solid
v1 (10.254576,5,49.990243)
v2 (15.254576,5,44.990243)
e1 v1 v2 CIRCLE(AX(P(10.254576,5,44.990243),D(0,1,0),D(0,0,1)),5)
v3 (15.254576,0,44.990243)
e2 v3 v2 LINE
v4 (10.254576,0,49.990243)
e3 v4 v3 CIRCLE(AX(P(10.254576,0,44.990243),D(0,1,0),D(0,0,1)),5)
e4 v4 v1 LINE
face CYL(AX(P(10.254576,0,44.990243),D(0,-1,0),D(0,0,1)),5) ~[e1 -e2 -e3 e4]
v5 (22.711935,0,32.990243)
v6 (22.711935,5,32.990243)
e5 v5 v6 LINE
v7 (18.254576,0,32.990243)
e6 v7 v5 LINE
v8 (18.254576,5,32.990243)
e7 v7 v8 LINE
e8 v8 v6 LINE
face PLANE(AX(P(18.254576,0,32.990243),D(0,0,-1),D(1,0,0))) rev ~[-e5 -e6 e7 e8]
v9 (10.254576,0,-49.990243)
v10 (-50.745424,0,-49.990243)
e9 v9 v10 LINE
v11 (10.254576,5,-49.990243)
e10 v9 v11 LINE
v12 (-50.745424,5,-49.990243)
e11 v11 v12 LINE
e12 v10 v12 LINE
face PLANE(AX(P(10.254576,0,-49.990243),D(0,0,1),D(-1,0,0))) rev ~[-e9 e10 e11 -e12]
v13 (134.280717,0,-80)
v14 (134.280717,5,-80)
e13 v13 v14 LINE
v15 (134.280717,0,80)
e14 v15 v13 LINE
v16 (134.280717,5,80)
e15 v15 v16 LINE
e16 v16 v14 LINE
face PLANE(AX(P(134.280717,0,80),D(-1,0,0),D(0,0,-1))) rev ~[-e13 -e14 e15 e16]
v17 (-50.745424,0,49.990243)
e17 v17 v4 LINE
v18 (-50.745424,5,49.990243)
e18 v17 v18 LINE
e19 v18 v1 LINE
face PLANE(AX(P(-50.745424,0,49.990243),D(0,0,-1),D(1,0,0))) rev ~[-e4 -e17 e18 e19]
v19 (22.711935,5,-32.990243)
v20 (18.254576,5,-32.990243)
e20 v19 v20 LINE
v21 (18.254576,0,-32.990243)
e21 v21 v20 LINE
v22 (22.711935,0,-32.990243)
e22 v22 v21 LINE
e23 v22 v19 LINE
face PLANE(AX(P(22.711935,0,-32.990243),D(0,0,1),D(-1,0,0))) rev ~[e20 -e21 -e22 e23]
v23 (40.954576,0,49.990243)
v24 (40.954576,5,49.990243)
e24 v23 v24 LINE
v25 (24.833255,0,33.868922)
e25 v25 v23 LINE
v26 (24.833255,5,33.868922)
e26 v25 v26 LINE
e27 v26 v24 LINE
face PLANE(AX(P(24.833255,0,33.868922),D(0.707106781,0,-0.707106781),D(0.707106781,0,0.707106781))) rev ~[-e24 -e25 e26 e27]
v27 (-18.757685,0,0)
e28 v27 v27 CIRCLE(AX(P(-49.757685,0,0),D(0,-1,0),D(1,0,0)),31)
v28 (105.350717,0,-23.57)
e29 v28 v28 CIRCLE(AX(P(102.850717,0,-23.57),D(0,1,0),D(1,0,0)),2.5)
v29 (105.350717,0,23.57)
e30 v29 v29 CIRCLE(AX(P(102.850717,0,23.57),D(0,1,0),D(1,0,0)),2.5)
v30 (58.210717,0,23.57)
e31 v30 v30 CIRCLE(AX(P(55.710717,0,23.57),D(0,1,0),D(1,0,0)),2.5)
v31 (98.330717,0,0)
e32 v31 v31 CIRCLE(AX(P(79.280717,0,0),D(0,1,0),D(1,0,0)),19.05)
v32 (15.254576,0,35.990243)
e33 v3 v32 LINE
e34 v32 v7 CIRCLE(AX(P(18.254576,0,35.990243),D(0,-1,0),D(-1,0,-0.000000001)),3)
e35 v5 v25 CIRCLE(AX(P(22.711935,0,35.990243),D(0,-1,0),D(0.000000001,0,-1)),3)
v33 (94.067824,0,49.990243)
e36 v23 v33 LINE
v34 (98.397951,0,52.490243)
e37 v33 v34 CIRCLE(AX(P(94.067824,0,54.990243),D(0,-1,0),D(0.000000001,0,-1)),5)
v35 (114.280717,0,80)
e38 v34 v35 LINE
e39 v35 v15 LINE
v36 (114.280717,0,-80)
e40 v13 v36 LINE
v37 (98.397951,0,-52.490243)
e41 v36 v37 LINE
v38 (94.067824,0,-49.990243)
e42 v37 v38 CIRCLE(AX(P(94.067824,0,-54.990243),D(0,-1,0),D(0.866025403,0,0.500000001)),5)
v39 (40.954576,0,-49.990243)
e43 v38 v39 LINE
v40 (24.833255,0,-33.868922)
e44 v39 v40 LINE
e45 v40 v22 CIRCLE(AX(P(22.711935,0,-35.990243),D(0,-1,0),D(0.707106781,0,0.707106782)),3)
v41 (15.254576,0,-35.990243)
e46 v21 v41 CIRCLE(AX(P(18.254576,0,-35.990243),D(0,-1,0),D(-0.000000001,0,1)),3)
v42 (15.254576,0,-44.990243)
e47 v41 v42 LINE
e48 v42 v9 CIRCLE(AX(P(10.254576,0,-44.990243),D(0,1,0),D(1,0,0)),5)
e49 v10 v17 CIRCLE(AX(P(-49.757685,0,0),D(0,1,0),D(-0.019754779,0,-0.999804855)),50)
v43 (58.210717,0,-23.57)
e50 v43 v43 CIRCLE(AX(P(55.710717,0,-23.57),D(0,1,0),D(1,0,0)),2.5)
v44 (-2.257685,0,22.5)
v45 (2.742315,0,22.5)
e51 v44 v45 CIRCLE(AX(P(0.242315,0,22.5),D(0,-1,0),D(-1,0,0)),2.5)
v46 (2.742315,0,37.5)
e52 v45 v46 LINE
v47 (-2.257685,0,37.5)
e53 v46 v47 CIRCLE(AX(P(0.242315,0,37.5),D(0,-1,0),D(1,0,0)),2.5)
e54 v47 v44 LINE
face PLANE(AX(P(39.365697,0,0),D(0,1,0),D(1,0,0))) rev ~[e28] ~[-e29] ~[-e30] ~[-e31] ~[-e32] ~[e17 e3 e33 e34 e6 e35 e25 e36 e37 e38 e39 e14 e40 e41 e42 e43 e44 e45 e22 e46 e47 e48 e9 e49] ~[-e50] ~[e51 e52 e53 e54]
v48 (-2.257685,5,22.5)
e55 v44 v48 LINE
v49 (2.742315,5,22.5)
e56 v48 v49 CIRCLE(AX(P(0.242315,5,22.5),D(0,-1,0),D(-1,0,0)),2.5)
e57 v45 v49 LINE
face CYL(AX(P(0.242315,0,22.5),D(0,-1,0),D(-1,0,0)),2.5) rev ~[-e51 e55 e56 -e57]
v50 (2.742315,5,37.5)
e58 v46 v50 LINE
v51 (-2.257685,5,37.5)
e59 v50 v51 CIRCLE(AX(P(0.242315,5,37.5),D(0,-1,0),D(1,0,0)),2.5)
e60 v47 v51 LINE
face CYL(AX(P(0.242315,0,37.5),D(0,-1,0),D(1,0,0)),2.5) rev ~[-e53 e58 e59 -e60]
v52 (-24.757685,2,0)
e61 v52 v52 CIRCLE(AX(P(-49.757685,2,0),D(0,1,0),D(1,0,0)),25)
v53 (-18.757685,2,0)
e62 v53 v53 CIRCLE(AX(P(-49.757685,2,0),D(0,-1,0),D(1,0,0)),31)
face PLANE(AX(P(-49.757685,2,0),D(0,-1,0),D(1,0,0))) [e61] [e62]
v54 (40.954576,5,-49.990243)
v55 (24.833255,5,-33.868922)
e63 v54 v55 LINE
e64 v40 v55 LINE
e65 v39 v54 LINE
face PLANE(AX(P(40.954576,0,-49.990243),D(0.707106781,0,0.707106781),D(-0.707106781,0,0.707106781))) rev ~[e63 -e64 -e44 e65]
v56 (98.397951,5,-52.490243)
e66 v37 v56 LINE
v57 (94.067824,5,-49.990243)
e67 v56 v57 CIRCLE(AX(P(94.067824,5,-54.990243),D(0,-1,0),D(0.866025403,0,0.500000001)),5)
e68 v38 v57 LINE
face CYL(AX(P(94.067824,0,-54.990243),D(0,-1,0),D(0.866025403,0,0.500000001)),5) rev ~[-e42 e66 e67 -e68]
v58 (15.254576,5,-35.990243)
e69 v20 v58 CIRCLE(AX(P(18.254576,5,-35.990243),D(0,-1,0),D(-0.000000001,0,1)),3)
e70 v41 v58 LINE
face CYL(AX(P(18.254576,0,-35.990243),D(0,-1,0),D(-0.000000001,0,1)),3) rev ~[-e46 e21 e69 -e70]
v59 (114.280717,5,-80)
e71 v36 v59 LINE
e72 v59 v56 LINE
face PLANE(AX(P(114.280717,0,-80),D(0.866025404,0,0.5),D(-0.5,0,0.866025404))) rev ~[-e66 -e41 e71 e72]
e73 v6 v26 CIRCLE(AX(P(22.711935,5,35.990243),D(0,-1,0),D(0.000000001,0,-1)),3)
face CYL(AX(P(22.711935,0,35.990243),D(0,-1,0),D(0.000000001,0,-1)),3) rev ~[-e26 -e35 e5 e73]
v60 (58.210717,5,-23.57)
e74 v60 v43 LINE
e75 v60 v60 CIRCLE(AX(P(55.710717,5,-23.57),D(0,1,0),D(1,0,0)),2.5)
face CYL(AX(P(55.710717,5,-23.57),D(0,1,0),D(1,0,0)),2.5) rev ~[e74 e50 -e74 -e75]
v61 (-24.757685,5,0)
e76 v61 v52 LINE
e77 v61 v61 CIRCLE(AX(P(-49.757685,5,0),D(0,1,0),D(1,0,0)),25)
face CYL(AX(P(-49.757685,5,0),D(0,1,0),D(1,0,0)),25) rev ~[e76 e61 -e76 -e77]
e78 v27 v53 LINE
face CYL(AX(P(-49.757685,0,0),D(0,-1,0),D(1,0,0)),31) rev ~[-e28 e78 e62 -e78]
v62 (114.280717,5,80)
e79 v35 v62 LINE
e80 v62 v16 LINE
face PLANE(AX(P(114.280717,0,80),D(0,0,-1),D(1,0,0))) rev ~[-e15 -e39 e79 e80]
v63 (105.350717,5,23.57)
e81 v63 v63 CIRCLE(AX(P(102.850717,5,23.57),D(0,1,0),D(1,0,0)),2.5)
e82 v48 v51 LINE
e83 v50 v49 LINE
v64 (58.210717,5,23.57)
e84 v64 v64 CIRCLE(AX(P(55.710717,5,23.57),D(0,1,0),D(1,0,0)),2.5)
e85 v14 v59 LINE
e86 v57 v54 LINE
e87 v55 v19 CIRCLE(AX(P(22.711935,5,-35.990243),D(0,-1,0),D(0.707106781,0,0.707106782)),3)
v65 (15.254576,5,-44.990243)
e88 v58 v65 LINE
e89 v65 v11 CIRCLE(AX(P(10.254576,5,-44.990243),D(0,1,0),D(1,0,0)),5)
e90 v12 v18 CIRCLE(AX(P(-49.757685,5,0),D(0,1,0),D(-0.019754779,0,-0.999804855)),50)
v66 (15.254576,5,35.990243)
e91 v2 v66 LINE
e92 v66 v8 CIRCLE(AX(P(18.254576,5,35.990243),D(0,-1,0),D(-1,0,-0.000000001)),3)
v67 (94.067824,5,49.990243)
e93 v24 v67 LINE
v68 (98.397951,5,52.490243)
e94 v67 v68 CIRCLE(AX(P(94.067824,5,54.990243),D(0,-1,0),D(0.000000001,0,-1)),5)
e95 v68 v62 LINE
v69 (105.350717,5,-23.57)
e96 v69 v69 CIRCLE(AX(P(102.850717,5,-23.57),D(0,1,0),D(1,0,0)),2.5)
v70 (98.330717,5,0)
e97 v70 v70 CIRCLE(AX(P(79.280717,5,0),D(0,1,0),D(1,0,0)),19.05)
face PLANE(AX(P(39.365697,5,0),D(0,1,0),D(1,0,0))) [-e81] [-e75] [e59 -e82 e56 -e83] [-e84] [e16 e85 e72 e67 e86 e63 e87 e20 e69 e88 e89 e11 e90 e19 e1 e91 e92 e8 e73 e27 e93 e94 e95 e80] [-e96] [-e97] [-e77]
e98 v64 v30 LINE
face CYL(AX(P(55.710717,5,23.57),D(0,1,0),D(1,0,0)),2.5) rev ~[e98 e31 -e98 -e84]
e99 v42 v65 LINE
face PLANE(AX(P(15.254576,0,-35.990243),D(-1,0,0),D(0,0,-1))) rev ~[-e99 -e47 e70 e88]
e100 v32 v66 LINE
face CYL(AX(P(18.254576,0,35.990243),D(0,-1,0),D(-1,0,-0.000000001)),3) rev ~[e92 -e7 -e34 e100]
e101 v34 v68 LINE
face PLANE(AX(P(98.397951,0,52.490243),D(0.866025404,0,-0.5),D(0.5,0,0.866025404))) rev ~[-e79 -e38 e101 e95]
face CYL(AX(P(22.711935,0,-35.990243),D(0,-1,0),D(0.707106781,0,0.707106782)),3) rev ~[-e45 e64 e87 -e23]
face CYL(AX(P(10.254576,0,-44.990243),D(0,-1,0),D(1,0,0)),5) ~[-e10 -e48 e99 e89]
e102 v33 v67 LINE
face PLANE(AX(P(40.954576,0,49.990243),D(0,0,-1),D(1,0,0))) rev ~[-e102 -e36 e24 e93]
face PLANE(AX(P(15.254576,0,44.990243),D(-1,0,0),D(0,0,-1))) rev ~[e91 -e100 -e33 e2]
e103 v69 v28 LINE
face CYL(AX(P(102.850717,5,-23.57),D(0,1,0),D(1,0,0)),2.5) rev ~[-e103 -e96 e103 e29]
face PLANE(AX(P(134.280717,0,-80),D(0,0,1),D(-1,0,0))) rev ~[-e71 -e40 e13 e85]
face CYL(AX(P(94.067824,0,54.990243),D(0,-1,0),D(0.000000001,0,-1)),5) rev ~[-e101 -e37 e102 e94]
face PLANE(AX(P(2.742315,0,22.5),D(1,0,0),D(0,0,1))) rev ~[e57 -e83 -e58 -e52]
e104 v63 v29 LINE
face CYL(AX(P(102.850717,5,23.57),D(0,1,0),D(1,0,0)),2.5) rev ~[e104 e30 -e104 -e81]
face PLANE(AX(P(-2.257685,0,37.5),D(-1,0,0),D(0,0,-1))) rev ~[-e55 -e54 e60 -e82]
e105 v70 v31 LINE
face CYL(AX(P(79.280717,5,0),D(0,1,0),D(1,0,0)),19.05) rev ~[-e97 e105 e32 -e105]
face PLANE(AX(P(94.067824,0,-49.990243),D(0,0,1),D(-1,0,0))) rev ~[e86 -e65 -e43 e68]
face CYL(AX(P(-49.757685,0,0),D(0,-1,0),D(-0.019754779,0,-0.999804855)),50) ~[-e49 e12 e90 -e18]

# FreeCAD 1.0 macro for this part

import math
import FreeCAD as App
import Part
import Sketcher
Q = App.Units.Quantity

doc = App.newDocument("Part")
body = doc.addObject("PartDesign::Body", "Body")

sketch1 = body.newObject("Sketcher::SketchObject", "Sketch")
sketch1.AttachmentSupport = (doc.getObject("XZ_Plane"), [""])
sketch1.MapMode = "FlatFace"
sketch1.addGeometry([
    Part.LineSegment(App.Vector(15.254576, -35.990243, 0), App.Vector(15.254576, -44.990243, 0)),
    Part.ArcOfCircle(Part.Circle(App.Vector(10.254576, -44.990243, 0), App.Vector(0, 0, 1), 5), math.radians(-90), math.radians(0)),
    Part.LineSegment(App.Vector(10.254576, -49.990243, 0), App.Vector(-50.745424, -49.990243, 0)),
    Part.ArcOfCircle(Part.Circle(App.Vector(-49.757685, 0, 0), App.Vector(0, 0, 1), 50), math.radians(91.131939), math.radians(268.868061)),
    Part.LineSegment(App.Vector(-50.745424, 49.990243, 0), App.Vector(10.254576, 49.990243, 0)),
    Part.ArcOfCircle(Part.Circle(App.Vector(10.254576, 44.990243, 0), App.Vector(0, 0, 1), 5), math.radians(0), math.radians(90)),
    Part.LineSegment(App.Vector(15.254576, 44.990243, 0), App.Vector(15.254576, 35.990243, 0)),
    Part.ArcOfCircle(Part.Circle(App.Vector(18.254576, 35.990243, 0), App.Vector(0, 0, 1), 3), math.radians(-180), math.radians(-90)),
    Part.LineSegment(App.Vector(18.254576, 32.990243, 0), App.Vector(22.711935, 32.990243, 0)),
    Part.ArcOfCircle(Part.Circle(App.Vector(22.711935, 35.990243, 0), App.Vector(0, 0, 1), 3), math.radians(-90), math.radians(-45)),
    Part.LineSegment(App.Vector(24.833255, 33.868922, 0), App.Vector(40.954576, 49.990243, 0)),
    Part.LineSegment(App.Vector(40.954576, 49.990243, 0), App.Vector(94.067824, 49.990243, 0)),
    Part.ArcOfCircle(Part.Circle(App.Vector(94.067824, 54.990243, 0), App.Vector(0, 0, 1), 5), math.radians(-90), math.radians(-30)),
    Part.LineSegment(App.Vector(98.397951, 52.490243, 0), App.Vector(114.280717, 80, 0)),
    Part.LineSegment(App.Vector(114.280717, 80, 0), App.Vector(134.280717, 80, 0)),
    Part.LineSegment(App.Vector(134.280717, 80, 0), App.Vector(134.280717, -80, 0)),
    Part.LineSegment(App.Vector(134.280717, -80, 0), App.Vector(114.280717, -80, 0)),
    Part.LineSegment(App.Vector(114.280717, -80, 0), App.Vector(98.397951, -52.490243, 0)),
    Part.ArcOfCircle(Part.Circle(App.Vector(94.067824, -54.990243, 0), App.Vector(0, 0, 1), 5), math.radians(30), math.radians(90)),
    Part.LineSegment(App.Vector(94.067824, -49.990243, 0), App.Vector(40.954576, -49.990243, 0)),
    Part.LineSegment(App.Vector(40.954576, -49.990243, 0), App.Vector(24.833255, -33.868922, 0)),
    Part.ArcOfCircle(Part.Circle(App.Vector(22.711935, -35.990243, 0), App.Vector(0, 0, 1), 3), math.radians(45), math.radians(90)),
    Part.LineSegment(App.Vector(22.711935, -32.990243, 0), App.Vector(18.254576, -32.990243, 0)),
    Part.ArcOfCircle(Part.Circle(App.Vector(18.254576, -35.990243, 0), App.Vector(0, 0, 1), 3), math.radians(90), math.radians(180)),
], False)
sketch1.addConstraint([
    Sketcher.Constraint("Coincident", 0, 2, 1, 2),
    Sketcher.Constraint("Coincident", 1, 1, 2, 1),
    Sketcher.Constraint("Coincident", 2, 2, 3, 2),
    Sketcher.Constraint("Coincident", 3, 1, 4, 1),
    Sketcher.Constraint("Coincident", 4, 2, 5, 2),
    Sketcher.Constraint("Coincident", 5, 1, 6, 1),
    Sketcher.Constraint("Coincident", 6, 2, 7, 1),
    Sketcher.Constraint("Coincident", 7, 2, 8, 1),
    Sketcher.Constraint("Coincident", 8, 2, 9, 1),
    Sketcher.Constraint("Coincident", 9, 2, 10, 1),
    Sketcher.Constraint("Coincident", 10, 2, 11, 1),
    Sketcher.Constraint("Coincident", 11, 2, 12, 1),
    Sketcher.Constraint("Coincident", 12, 2, 13, 1),
    Sketcher.Constraint("Coincident", 13, 2, 14, 1),
    Sketcher.Constraint("Coincident", 14, 2, 15, 1),
    Sketcher.Constraint("Coincident", 15, 2, 16, 1),
    Sketcher.Constraint("Coincident", 16, 2, 17, 1),
    Sketcher.Constraint("Coincident", 17, 2, 18, 1),
    Sketcher.Constraint("Coincident", 18, 2, 19, 1),
    Sketcher.Constraint("Coincident", 19, 2, 20, 1),
    Sketcher.Constraint("Coincident", 20, 2, 21, 1),
    Sketcher.Constraint("Coincident", 21, 2, 22, 1),
    Sketcher.Constraint("Coincident", 22, 2, 23, 1),
    Sketcher.Constraint("Coincident", 23, 2, 0, 1),
    Sketcher.Constraint("Vertical", 0),
    Sketcher.Constraint("Horizontal", 2),
    Sketcher.Constraint("Horizontal", 4),
    Sketcher.Constraint("Vertical", 6),
    Sketcher.Constraint("Horizontal", 8),
    Sketcher.Constraint("Horizontal", 11),
    Sketcher.Constraint("Horizontal", 14),
    Sketcher.Constraint("Vertical", 15),
    Sketcher.Constraint("Horizontal", 16),
    Sketcher.Constraint("Horizontal", 19),
    Sketcher.Constraint("Horizontal", 22),
    Sketcher.Constraint("PointOnObject", 3, 3, -1),
    Sketcher.Constraint("Radius", 1, Q("5 mm")),
    Sketcher.Constraint("Radius", 3, Q("50 mm")),
    Sketcher.Constraint("Radius", 5, Q("5 mm")),
    Sketcher.Constraint("Radius", 7, Q("3 mm")),
    Sketcher.Constraint("Radius", 9, Q("3 mm")),
    Sketcher.Constraint("Radius", 12, Q("5 mm")),
    Sketcher.Constraint("Radius", 18, Q("5 mm")),
    Sketcher.Constraint("Radius", 21, Q("3 mm")),
    Sketcher.Constraint("Radius", 23, Q("3 mm")),
    Sketcher.Constraint("DistanceX", 2, 2, 2, 1, Q("61 mm")),
    Sketcher.Constraint("DistanceX", 4, 1, 4, 2, Q("61 mm")),
    Sketcher.Constraint("DistanceX", 14, 1, 14, 2, Q("20 mm")),
    Sketcher.Constraint("DistanceX", 16, 2, 16, 1, Q("20 mm")),
    Sketcher.Constraint("DistanceY", 0, 2, 0, 1, Q("9 mm")),
    Sketcher.Constraint("DistanceY", 6, 2, 6, 1, Q("9 mm")),
    Sketcher.Constraint("DistanceY", 15, 2, 15, 1, Q("160 mm")),
    Sketcher.Constraint("DistanceY", -1, 1, 13, 2, Q("80 mm")),
    Sketcher.Constraint("DistanceY", 7, 3, 5, 3, Q("9 mm")),
    Sketcher.Constraint("DistanceX", 1, 3, 7, 3, Q("8 mm")),
    Sketcher.Constraint("DistanceY", 9, 3, 12, 3, Q("19 mm")),
    Sketcher.Constraint("DistanceY", 18, 3, 1, 3, Q("10 mm")),
    Sketcher.Constraint("DistanceY", 1, 3, 21, 3, Q("9 mm")),
    Sketcher.Constraint("DistanceY", 0, 2, 23, 3, Q("9 mm")),
    Sketcher.Constraint("DistanceX", 1, 1, 0, 2, Q("5 mm")),
    Sketcher.Constraint("DistanceX", 3, 1, 5, 3, Q("61 mm")),
    Sketcher.Constraint("DistanceY", 5, 1, 4, 2, Q("5 mm")),
    Sketcher.Constraint("DistanceX", 6, 2, 7, 2, Q("3 mm")),
    Sketcher.Constraint("DistanceX", 0, 2, 22, 2, Q("3 mm")),
    Sketcher.Constraint("DistanceX", 5, 1, 10, 2, Q("25.7 mm")),
    Sketcher.Constraint("DistanceY", 11, 2, 12, 2, Q("2.5 mm")),
    Sketcher.Constraint("DistanceY", 18, 3, 17, 2, Q("2.5 mm")),
    Sketcher.Constraint("DistanceX", 0, 2, 19, 2, Q("25.7 mm")),
    Sketcher.Constraint("DistanceX", 8, 1, 8, 2, Q("4.457359 mm")),
    Sketcher.Constraint("DistanceX", 11, 1, 11, 2, Q("53.113249 mm")),
    Sketcher.Constraint("DistanceX", 19, 2, 19, 1, Q("53.113249 mm")),
    Sketcher.Constraint("DistanceX", 22, 2, 22, 1, Q("4.457359 mm")),
    Sketcher.Constraint("Distance", 10, Q("22.79899 mm")),
    Sketcher.Constraint("Distance", 13, Q("31.765531 mm")),
    Sketcher.Constraint("Distance", 17, Q("31.765531 mm")),
    Sketcher.Constraint("Distance", 20, Q("22.79899 mm")),
    Sketcher.Constraint("DistanceX", -1, 1, 12, 2, Q("98.397951 mm")),
    Sketcher.Constraint("DistanceX", 3, 3, 1, 3, Q("60.012261 mm")),
    Sketcher.Constraint("DistanceX", 7, 3, 9, 3, Q("4.457359 mm")),
    Sketcher.Constraint("DistanceX", 9, 3, 12, 3, Q("71.355889 mm")),
    Sketcher.Constraint("DistanceX", 1, 3, 21, 3, Q("12.457359 mm")),
])
pad1 = body.newObject("PartDesign::Pad", "Pad")
pad1.Profile = sketch1
pad1.Length = 5
pad1.Reversed = True

sketch2 = body.newObject("Sketcher::SketchObject", "Sketch001")
sketch2.AttachmentSupport = (doc.getObject("XZ_Plane"), [""])
sketch2.MapMode = "FlatFace"
sketch2.AttachmentOffset = App.Placement(App.Vector(0, 0, -5), App.Rotation())
sketch2.addGeometry([
    Part.Circle(App.Vector(79.3, 0, 0), App.Vector(0, 0, 1), 19.1),
    Part.Circle(App.Vector(55.7, -23.6, 0), App.Vector(0, 0, 1), 2.5),
    Part.Circle(App.Vector(102.9, -23.6, 0), App.Vector(0, 0, 1), 2.5),
    Part.Circle(App.Vector(102.9, 23.6, 0), App.Vector(0, 0, 1), 2.5),
    Part.Circle(App.Vector(55.7, 23.6, 0), App.Vector(0, 0, 1), 2.5),
    Part.Circle(App.Vector(-49.8, 0, 0), App.Vector(0, 0, 1), 25),
], False)
sketch2.addConstraint([
    Sketcher.Constraint("Equal", 1, 2),
    Sketcher.Constraint("Equal", 2, 3),
    Sketcher.Constraint("Equal", 3, 4),
    Sketcher.Constraint("Symmetric", 2, 3, 3, 3, -1),
    Sketcher.Constraint("Symmetric", 1, 3, 4, 3, -1),
    Sketcher.Constraint("PointOnObject", 0, 3, -1),
    Sketcher.Constraint("PointOnObject", 5, 3, -1),
    Sketcher.Constraint("Horizontal", 1, 3, 2, 3),
    Sketcher.Constraint("Diameter", 1, Q("5 mm")),
    Sketcher.Constraint("Diameter", 5, Q("50 mm")),
    Sketcher.Constraint("Diameter", 0, Q("38.1 mm")),
    Sketcher.Constraint("DistanceY", 1, 3, -1, 1, Q("23.57 mm")),
    Sketcher.Constraint("DistanceX", 1, 3, 0, 3, Q("23.57 mm")),
    Sketcher.Constraint("DistanceX", 0, 3, 2, 3, Q("23.57 mm")),
    Sketcher.Constraint("DistanceX", -1, 1, 0, 3, Q("79.280717 mm")),
    Sketcher.Constraint("DistanceX", 5, 3, -1, 1, Q("49.757685 mm")),
])
pocket1 = body.newObject("PartDesign::Pocket", "Pocket")
pocket1.Profile = sketch2
pocket1.Type = "ThroughAll"
pocket1.Reversed = True

sketch3 = body.newObject("Sketcher::SketchObject", "Sketch002")
sketch3.AttachmentSupport = (doc.getObject("XZ_Plane"), [""])
sketch3.MapMode = "FlatFace"
sketch3.addGeometry(Part.Circle(App.Vector(-50, 0, 0), App.Vector(0, 0, 1), 31), False)
sketch3.addConstraint([
    Sketcher.Constraint("PointOnObject", 0, 3, -1),
    Sketcher.Constraint("Diameter", 0, Q("62 mm")),
    Sketcher.Constraint("DistanceX", 0, 3, -1, 1, Q("49.757685 mm")),
])
pocket2 = body.newObject("PartDesign::Pocket", "Pocket001")
pocket2.Profile = sketch3
pocket2.Length = 2

sketch4 = body.newObject("Sketcher::SketchObject", "Sketch003")
sketch4.AttachmentSupport = (doc.getObject("XZ_Plane"), [""])
sketch4.MapMode = "FlatFace"
sketch4.addGeometry([
    Part.LineSegment(App.Vector(-2.3, 37.5, 0), App.Vector(-2.3, 22.5, 0)),
    Part.ArcOfCircle(Part.Circle(App.Vector(0.2, 22.5, 0), App.Vector(0, 0, 1), 2.5), math.radians(180), math.radians(360)),
    Part.LineSegment(App.Vector(2.7, 22.5, 0), App.Vector(2.7, 37.5, 0)),
    Part.ArcOfCircle(Part.Circle(App.Vector(0.2, 37.5, 0), App.Vector(0, 0, 1), 2.5), math.radians(0), math.radians(180)),
], False)
sketch4.addConstraint([
    Sketcher.Constraint("Tangent", 0, 2, 1, 1),
    Sketcher.Constraint("Tangent", 1, 2, 2, 1),
    Sketcher.Constraint("Tangent", 2, 2, 3, 1),
    Sketcher.Constraint("Tangent", 3, 2, 0, 1),
    Sketcher.Constraint("Vertical", 0),
    Sketcher.Constraint("Vertical", 2),
    Sketcher.Constraint("Radius", 1, Q("2.5 mm")),
    Sketcher.Constraint("DistanceY", 0, 2, 0, 1, Q("15 mm")),
    Sketcher.Constraint("DistanceY", -1, 1, 1, 3, Q("22.5 mm")),
    Sketcher.Constraint("DistanceX", -1, 1, 1, 3, Q("0.242315 mm")),
])
pocket3 = body.newObject("PartDesign::Pocket", "Pocket002")
pocket3.Profile = sketch4
pocket3.Type = "ThroughAll"

doc.recompute()
